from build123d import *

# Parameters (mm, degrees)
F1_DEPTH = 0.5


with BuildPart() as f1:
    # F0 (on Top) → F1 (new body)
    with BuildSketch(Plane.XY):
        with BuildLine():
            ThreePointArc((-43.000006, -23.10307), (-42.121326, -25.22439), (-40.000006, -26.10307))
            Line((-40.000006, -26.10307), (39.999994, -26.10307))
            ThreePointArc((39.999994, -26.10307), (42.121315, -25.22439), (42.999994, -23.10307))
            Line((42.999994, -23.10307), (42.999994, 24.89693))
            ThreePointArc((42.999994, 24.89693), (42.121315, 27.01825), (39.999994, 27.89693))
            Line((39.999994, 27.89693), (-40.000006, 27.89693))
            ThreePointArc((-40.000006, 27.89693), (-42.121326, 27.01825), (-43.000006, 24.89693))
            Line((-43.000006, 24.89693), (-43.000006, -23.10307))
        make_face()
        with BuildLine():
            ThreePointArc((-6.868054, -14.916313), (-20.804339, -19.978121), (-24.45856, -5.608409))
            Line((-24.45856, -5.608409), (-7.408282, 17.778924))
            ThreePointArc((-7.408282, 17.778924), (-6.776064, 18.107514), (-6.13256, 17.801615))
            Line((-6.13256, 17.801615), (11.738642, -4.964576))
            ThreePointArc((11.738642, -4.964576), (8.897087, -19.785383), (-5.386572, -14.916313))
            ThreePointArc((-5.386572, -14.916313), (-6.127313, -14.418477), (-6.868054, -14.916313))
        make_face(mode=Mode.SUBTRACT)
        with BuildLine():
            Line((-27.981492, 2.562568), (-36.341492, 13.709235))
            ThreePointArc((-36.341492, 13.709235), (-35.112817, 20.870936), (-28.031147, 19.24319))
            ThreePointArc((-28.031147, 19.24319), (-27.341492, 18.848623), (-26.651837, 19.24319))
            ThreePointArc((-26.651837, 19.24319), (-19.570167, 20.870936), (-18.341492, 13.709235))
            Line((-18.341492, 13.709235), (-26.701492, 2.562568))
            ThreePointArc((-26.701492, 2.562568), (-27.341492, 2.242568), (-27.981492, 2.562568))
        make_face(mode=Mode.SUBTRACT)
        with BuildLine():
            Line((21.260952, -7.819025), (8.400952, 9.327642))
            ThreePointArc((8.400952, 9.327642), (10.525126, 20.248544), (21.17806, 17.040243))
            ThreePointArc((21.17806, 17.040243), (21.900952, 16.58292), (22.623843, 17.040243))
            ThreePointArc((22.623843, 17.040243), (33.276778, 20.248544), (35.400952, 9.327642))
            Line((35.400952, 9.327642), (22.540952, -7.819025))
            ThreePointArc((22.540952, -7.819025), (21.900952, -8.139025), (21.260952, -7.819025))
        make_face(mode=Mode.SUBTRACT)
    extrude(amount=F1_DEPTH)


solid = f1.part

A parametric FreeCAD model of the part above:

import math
import FreeCAD as App
import Part
import Sketcher
from FreeCAD import Vector
Q = App.Units.Quantity

doc = App.newDocument("Part")
body = doc.addObject("PartDesign::Body", "Body")

# Sketch on XY plane
sketch1 = body.newObject("Sketcher::SketchObject", "Sketch")
sketch1.AttachmentSupport = (doc.getObject("XY_Plane"), [""])
sketch1.MapMode = "FlatFace"
sketch1.addGeometry([
    Part.ArcOfCircle(Part.Circle(Vector(-40.000005, -23.103069, 0), Vector(0, 0, 1), 3.000001), math.radians(-179.999978), math.radians(-90.000022)),  # 0
    Part.LineSegment(Vector(-40.000006, -26.10307, 0), Vector(39.999994, -26.10307, 0)),  # 1
    Part.ArcOfCircle(Part.Circle(Vector(39.999995, -23.103071, 0), Vector(0, 0, 1), 2.999999), math.radians(-90.00001), math.radians(0.00001)),  # 2
    Part.LineSegment(Vector(42.999994, -23.10307, 0), Vector(42.999994, 24.89693, 0)),  # 3
    Part.ArcOfCircle(Part.Circle(Vector(39.999995, 24.896931, 0), Vector(0, 0, 1), 2.999999), math.radians(-0.00001), math.radians(90.00001)),  # 4
    Part.LineSegment(Vector(39.999994, 27.89693, 0), Vector(-40.000006, 27.89693, 0)),  # 5
    Part.ArcOfCircle(Part.Circle(Vector(-40.000005, 24.896929, 0), Vector(0, 0, 1), 3.000001), math.radians(90.000022), math.radians(179.999978)),  # 6
    Part.LineSegment(Vector(-43.000006, 24.89693, 0), Vector(-43.000006, -23.10307, 0)),  # 7
    Part.ArcOfCircle(Part.Circle(Vector(-6.127313, -15.218477, 0), Vector(0, 0, 1), 0.8), math.radians(22.191612), math.radians(157.808388)),  # 8
    Part.ArcOfCircle(Part.Circle(Vector(-16.127313, -11.139262, 0), Vector(0, 0, 1), 10), math.radians(146.421066), math.radians(337.808395)),  # 9
    Part.LineSegment(Vector(-24.45856, -5.608409, 0), Vector(-7.408282, 17.778924, 0)),  # 10
    Part.ArcOfCircle(Part.Circle(Vector(-6.761837, 17.307641, 0), Vector(0, 0, 1), 0.8), math.radians(38.131465), math.radians(143.906536)),  # 11
    Part.LineSegment(Vector(-6.13256, 17.801615, 0), Vector(11.738642, -4.964576, 0)),  # 12
    Part.ArcOfCircle(Part.Circle(Vector(3.872687, -11.139262, 0), Vector(0, 0, 1), 10), math.radians(-157.808398), math.radians(38.131517)),  # 13
    Part.ArcOfCircle(Part.Circle(Vector(-27.341492, 3.042568, 0), Vector(0, 0, 1), 0.8), math.radians(-143.130102), math.radians(-36.869898)),  # 14
    Part.LineSegment(Vector(-27.981492, 2.562568, 0), Vector(-36.341492, 13.709235, 0)),  # 15
    Part.ArcOfCircle(Part.Circle(Vector(-32.341492, 16.709235, 0), Vector(0, 0, 1), 5), math.radians(30.450318), math.radians(216.869894)),  # 16
    Part.ArcOfCircle(Part.Circle(Vector(-27.341492, 19.648623, 0), Vector(0, 0, 1), 0.8), math.radians(-149.549671), math.radians(-30.450329)),  # 17
    Part.ArcOfCircle(Part.Circle(Vector(-22.341492, 16.709235, 0), Vector(0, 0, 1), 5), math.radians(-36.869894), math.radians(149.549682)),  # 18
    Part.LineSegment(Vector(-18.341492, 13.709235, 0), Vector(-26.701492, 2.562568, 0)),  # 19
    Part.ArcOfCircle(Part.Circle(Vector(21.900952, -7.339025, 0), Vector(0, 0, 1), 0.8), math.radians(-143.130102), math.radians(-36.869898)),  # 20
    Part.LineSegment(Vector(21.260952, -7.819025, 0), Vector(8.400952, 9.327642, 0)),  # 21
    Part.ArcOfCircle(Part.Circle(Vector(14.400952, 13.827643, 0), Vector(0, 0, 1), 7.5), math.radians(25.362685), math.radians(216.869903)),  # 22
    Part.ArcOfCircle(Part.Circle(Vector(21.900952, 17.38292, 0), Vector(0, 0, 1), 0.8), math.radians(-154.637363), math.radians(-25.362637)),  # 23
    Part.ArcOfCircle(Part.Circle(Vector(29.400952, 13.827642, 0), Vector(0, 0, 1), 7.5), math.radians(-36.869899), math.radians(154.637315)),  # 24
    Part.LineSegment(Vector(35.400952, 9.327642, 0), Vector(22.540952, -7.819025, 0)),  # 25
], False)
sketch1.addConstraint([
    Sketcher.Constraint("Tangent", 0, 2, 1, 1),
    Sketcher.Constraint("Tangent", 1, 2, 2, 1),
    Sketcher.Constraint("Tangent", 2, 2, 3, 1),
    Sketcher.Constraint("Tangent", 3, 2, 4, 1),
    Sketcher.Constraint("Tangent", 4, 2, 5, 1),
    Sketcher.Constraint("Tangent", 5, 2, 6, 1),
    Sketcher.Constraint("Tangent", 6, 2, 7, 1),
    Sketcher.Constraint("Tangent", 7, 2, 0, 1),
    Sketcher.Constraint("Tangent", 8, 2, 9, 2),
    Sketcher.Constraint("Coincident", 9, 1, 10, 1),
    Sketcher.Constraint("Tangent", 10, 2, 11, 2),
    Sketcher.Constraint("Tangent", 11, 1, 12, 1),
    Sketcher.Constraint("Tangent", 12, 2, 13, 2),
    Sketcher.Constraint("Tangent", 13, 1, 8, 1),
    Sketcher.Constraint("Tangent", 14, 1, 15, 1),
    Sketcher.Constraint("Tangent", 15, 2, 16, 2),
    Sketcher.Constraint("Tangent", 16, 1, 17, 1),
    Sketcher.Constraint("Tangent", 17, 2, 18, 2),
    Sketcher.Constraint("Tangent", 18, 1, 19, 1),
    Sketcher.Constraint("Tangent", 19, 2, 14, 2),
    Sketcher.Constraint("Tangent", 20, 1, 21, 1),
    Sketcher.Constraint("Tangent", 21, 2, 22, 2),
    Sketcher.Constraint("Tangent", 22, 1, 23, 1),
    Sketcher.Constraint("Tangent", 23, 2, 24, 2),
    Sketcher.Constraint("Tangent", 24, 1, 25, 1),
    Sketcher.Constraint("Tangent", 25, 2, 20, 2),
    Sketcher.Constraint("Horizontal", 1),
    Sketcher.Constraint("Vertical", 3),
    Sketcher.Constraint("Horizontal", 5),
    Sketcher.Constraint("Vertical", 7),
    Sketcher.Constraint("Equal", 0, 2),
    Sketcher.Constraint("Equal", 2, 4),
    Sketcher.Constraint("Equal", 4, 6),
    Sketcher.Constraint("Equal", 8, 11),
    Sketcher.Constraint("Equal", 9, 13),
    Sketcher.Constraint("Equal", 11, 14),
    Sketcher.Constraint("Equal", 14, 17),
    Sketcher.Constraint("Equal", 16, 18),
    Sketcher.Constraint("Equal", 17, 20),
    Sketcher.Constraint("Equal", 20, 23),
    Sketcher.Constraint("Equal", 22, 24),
    Sketcher.Constraint("Parallel", 15, 21),
    Sketcher.Constraint("Parallel", 19, 25),
    Sketcher.Constraint("Horizontal", 9, 3, 13, 3),
    Sketcher.Constraint("Horizontal", 16, 3, 18, 3),
    Sketcher.Constraint("Horizontal", 22, 3, 24, 3),
    Sketcher.Constraint("Horizontal", 15, 2, 18, 1),
    Sketcher.Constraint("Equal", 10, 12),
    Sketcher.Constraint("Radius", 0, Q("3.000001 mm")),
    Sketcher.Constraint("Radius", 9, Q("10 mm")),
    Sketcher.Constraint("Radius", 16, Q("5 mm")),
    Sketcher.Constraint("Radius", 8, Q("0.8 mm")),
    Sketcher.Constraint("Radius", 22, Q("7.5 mm")),
    Sketcher.Constraint("DistanceX", 1, 1, 1, 2, Q("80 mm")),
    Sketcher.Constraint("DistanceY", 3, 1, 3, 2, Q("48 mm")),
    Sketcher.Constraint("DistanceX", 9, 3, 8, 3, Q("10 mm")),
    Sketcher.Constraint("DistanceX", 16, 3, 14, 3, Q("5 mm")),
    Sketcher.Constraint("DistanceX", 22, 3, 24, 3, Q("15 mm")),
    Sketcher.Constraint("DistanceX", 15, 2, 16, 3, Q("4 mm")),
    Sketcher.Constraint("DistanceY", 22, 3, 11, 3, Q("3.479998 mm")),
    Sketcher.Constraint("DistanceY", 10, 2, 17, 3, Q("1.869699 mm")),
    Sketcher.Constraint("DistanceY", 8, 3, 12, 2, Q("10.253901 mm")),
    Sketcher.Constraint("Distance", 10, Q("28.94269 mm")),
    Sketcher.Constraint("DistanceY", 0, 3, -1, 1, Q("23.103069 mm")),
    Sketcher.Constraint("DistanceY", 9, 3, -1, 1, Q("11.139262 mm")),
    Sketcher.Constraint("DistanceX", 14, 3, -1, 1, Q("27.341492 mm")),
    Sketcher.Constraint("DistanceX", -1, 1, 20, 3, Q("21.900952 mm")),
    Sketcher.Constraint("DistanceX", 9, 1, -1, 1, Q("24.45856 mm")),
    Sketcher.Constraint("DistanceX", 0, 3, 8, 3, Q("33.872692 mm")),
])
pad1 = body.newObject("PartDesign::Pad", "Pad")
pad1.Profile = sketch1
pad1.Length = 0.5

doc.recompute()
